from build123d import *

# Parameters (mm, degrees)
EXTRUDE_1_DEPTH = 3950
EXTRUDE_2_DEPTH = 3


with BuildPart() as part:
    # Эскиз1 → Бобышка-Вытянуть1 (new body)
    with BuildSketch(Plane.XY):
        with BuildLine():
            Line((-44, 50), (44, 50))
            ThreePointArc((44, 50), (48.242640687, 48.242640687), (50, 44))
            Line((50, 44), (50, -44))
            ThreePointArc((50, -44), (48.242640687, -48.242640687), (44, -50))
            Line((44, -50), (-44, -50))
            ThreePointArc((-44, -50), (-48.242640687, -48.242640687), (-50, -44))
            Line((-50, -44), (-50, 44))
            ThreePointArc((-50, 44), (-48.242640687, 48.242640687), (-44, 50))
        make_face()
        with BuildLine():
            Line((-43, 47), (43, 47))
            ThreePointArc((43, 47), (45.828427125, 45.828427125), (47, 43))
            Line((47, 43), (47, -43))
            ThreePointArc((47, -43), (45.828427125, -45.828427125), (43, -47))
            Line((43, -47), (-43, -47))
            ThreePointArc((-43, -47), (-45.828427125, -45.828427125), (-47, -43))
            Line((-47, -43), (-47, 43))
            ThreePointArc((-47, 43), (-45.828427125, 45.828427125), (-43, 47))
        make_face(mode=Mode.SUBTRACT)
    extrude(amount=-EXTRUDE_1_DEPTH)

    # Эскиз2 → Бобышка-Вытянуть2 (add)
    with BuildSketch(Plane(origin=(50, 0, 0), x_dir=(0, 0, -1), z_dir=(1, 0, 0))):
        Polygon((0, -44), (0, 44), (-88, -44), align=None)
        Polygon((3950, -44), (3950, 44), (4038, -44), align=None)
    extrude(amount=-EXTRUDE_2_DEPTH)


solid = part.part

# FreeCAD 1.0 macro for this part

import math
import FreeCAD as App
import Part
import Sketcher
from FreeCAD import Vector
Q = App.Units.Quantity


def add_polygon(sketch, points):
    """Adds a closed chain of lines whose ends are joined by coincident constraints."""
    first, n = sketch.GeometryCount, len(points)
    for a, b in zip(points, points[1:] + points[:1]):
        sketch.addGeometry(Part.LineSegment(App.Vector(*a, 0), App.Vector(*b, 0)), False)
    for i in range(n):
        sketch.addConstraint(Sketcher.Constraint("Coincident", first + i, 2, first + (i + 1) % n, 1))

doc = App.newDocument("Part")
params = doc.addObject("Spreadsheet::Sheet", "Params")
for row, (alias, value) in enumerate([
    ("sketch1_radius", "6 mm"),
    ("sketch1_radius2", "4 mm"),
    ("sketch1_width", "88 mm"),
    ("sketch1_width2", "86 mm"),
    ("pad1_length", "3950 mm"),
    ("sketch2_width", "88 mm"),
    ("pad2_length", "3 mm"),
], start=1):
    params.set(f"A{row}", alias)
    params.set(f"B{row}", "=" + value)
    params.setAlias(f"B{row}", alias)

body = doc.addObject("PartDesign::Body", "Body")

# Sketch on XY plane
sketch1 = body.newObject("Sketcher::SketchObject", "Sketch")
sketch1.AttachmentSupport = (doc.getObject("XY_Plane"), [""])
sketch1.MapMode = "FlatFace"
sketch1.addGeometry([
    Part.LineSegment(Vector(44, 50, 0), Vector(-44, 50, 0)),  # 0
    Part.ArcOfCircle(Part.Circle(Vector(-44, 44, 0), Vector(0, 0, 1), 6), math.radians(90), math.radians(180)),  # 1
    Part.LineSegment(Vector(-50, 44, 0), Vector(-50, -44, 0)),  # 2
    Part.ArcOfCircle(Part.Circle(Vector(-44, -44, 0), Vector(0, 0, 1), 6), math.radians(180), math.radians(270)),  # 3
    Part.LineSegment(Vector(-44, -50, 0), Vector(44, -50, 0)),  # 4
    Part.ArcOfCircle(Part.Circle(Vector(44, -44, 0), Vector(0, 0, 1), 6), math.radians(-90), math.radians(0)),  # 5
    Part.LineSegment(Vector(50, -44, 0), Vector(50, 44, 0)),  # 6
    Part.ArcOfCircle(Part.Circle(Vector(44, 44, 0), Vector(0, 0, 1), 6), math.radians(0), math.radians(90)),  # 7
    Part.LineSegment(Vector(-43, 47, 0), Vector(43, 47, 0)),  # 8
    Part.ArcOfCircle(Part.Circle(Vector(43, 43, 0), Vector(0, 0, 1), 4), math.radians(0), math.radians(90)),  # 9
    Part.LineSegment(Vector(47, 43, 0), Vector(47, -43, 0)),  # 10
    Part.ArcOfCircle(Part.Circle(Vector(43, -43, 0), Vector(0, 0, 1), 4), math.radians(-90), math.radians(0)),  # 11
    Part.LineSegment(Vector(43, -47, 0), Vector(-43, -47, 0)),  # 12
    Part.ArcOfCircle(Part.Circle(Vector(-43, -43, 0), Vector(0, 0, 1), 4), math.radians(180), math.radians(270)),  # 13
    Part.LineSegment(Vector(-47, -43, 0), Vector(-47, 43, 0)),  # 14
    Part.ArcOfCircle(Part.Circle(Vector(-43, 43, 0), Vector(0, 0, 1), 4), math.radians(90), math.radians(180)),  # 15
], False)
sketch1.addConstraint([
    Sketcher.Constraint("Tangent", 0, 2, 1, 1),
    Sketcher.Constraint("Tangent", 1, 2, 2, 1),
    Sketcher.Constraint("Tangent", 2, 2, 3, 1),
    Sketcher.Constraint("Tangent", 3, 2, 4, 1),
    Sketcher.Constraint("Tangent", 4, 2, 5, 1),
    Sketcher.Constraint("Tangent", 5, 2, 6, 1),
    Sketcher.Constraint("Tangent", 6, 2, 7, 1),
    Sketcher.Constraint("Tangent", 7, 2, 0, 1),
    Sketcher.Constraint("Tangent", 8, 2, 9, 2),
    Sketcher.Constraint("Tangent", 9, 1, 10, 1),
    Sketcher.Constraint("Tangent", 10, 2, 11, 2),
    Sketcher.Constraint("Tangent", 11, 1, 12, 1),
    Sketcher.Constraint("Tangent", 12, 2, 13, 2),
    Sketcher.Constraint("Tangent", 13, 1, 14, 1),
    Sketcher.Constraint("Tangent", 14, 2, 15, 2),
    Sketcher.Constraint("Tangent", 15, 1, 8, 1),
    Sketcher.Constraint("Horizontal", 0),
    Sketcher.Constraint("Vertical", 2),
    Sketcher.Constraint("Horizontal", 4),
    Sketcher.Constraint("Vertical", 6),
    Sketcher.Constraint("Horizontal", 8),
    Sketcher.Constraint("Vertical", 10),
    Sketcher.Constraint("Horizontal", 12),
    Sketcher.Constraint("Vertical", 14),
    Sketcher.Constraint("Equal", 1, 3),
    Sketcher.Constraint("Equal", 3, 5),
    Sketcher.Constraint("Equal", 5, 7),
    Sketcher.Constraint("Equal", 9, 11),
    Sketcher.Constraint("Equal", 11, 13),
    Sketcher.Constraint("Equal", 13, 15),
    Sketcher.Constraint("Symmetric", 1, 3, 5, 3, -1, 1),
    Sketcher.Constraint("Symmetric", 9, 3, 13, 3, -1, 1),
    Sketcher.Constraint("Equal", 4, 2),
    Sketcher.Constraint("Equal", 12, 10),
    Sketcher.Constraint("Radius", 1, Q("6 mm")),
    Sketcher.Constraint("Radius", 9, Q("4 mm")),
    Sketcher.Constraint("DistanceX", 0, 2, 0, 1, Q("88 mm")),
    Sketcher.Constraint("DistanceX", 8, 1, 8, 2, Q("86 mm")),
])
sketch1.setExpression("Constraints[34]", "Params.sketch1_radius")
sketch1.setExpression("Constraints[35]", "Params.sketch1_radius2")
sketch1.setExpression("Constraints[36]", "Params.sketch1_width")
sketch1.setExpression("Constraints[37]", "Params.sketch1_width2")
pad1 = body.newObject("PartDesign::Pad", "Pad")
pad1.Profile = sketch1
pad1.setExpression("Length", "Params.pad1_length")
pad1.Reversed = True

# Sketch on YZ plane
sketch2 = body.newObject("Sketcher::SketchObject", "Sketch001")
sketch2.AttachmentSupport = (doc.getObject("YZ_Plane"), [""])
sketch2.MapMode = "FlatFace"
sketch2.AttachmentOffset = App.Placement(Vector(0, 0, 50), App.Rotation())
add_polygon(sketch2, [(-44, 0), (44, 0), (-44, 88)])  # lines 0-2
add_polygon(sketch2, [(44, -3950), (-44, -3950), (-44, -4038)])  # lines 3-5
sketch2.addConstraint([
    Sketcher.Constraint("Horizontal", 0),
    Sketcher.Constraint("Vertical", 2),
    Sketcher.Constraint("Horizontal", 3),
    Sketcher.Constraint("Vertical", 4),
    Sketcher.Constraint("Symmetric", 0, 2, 2, 2, -1, 1),
    Sketcher.Constraint("Perpendicular", 1, 5),
    Sketcher.Constraint("Vertical", 2, 2, 3, 2),
    Sketcher.Constraint("Vertical", 0, 2, 5, 2),
    Sketcher.Constraint("Equal", 3, 2),
    Sketcher.Constraint("DistanceX", 0, 1, 0, 2, Q("88 mm")),
    Sketcher.Constraint("DistanceY", 3, 2, -1, 1, Q("3950 mm")),
])
sketch2.setExpression("Constraints[15]", "Params.sketch2_width")
pad2 = body.newObject("PartDesign::Pad", "Pad001")
pad2.Profile = sketch2
pad2.setExpression("Length", "Params.pad2_length")
pad2.Reversed = True

doc.recompute()
